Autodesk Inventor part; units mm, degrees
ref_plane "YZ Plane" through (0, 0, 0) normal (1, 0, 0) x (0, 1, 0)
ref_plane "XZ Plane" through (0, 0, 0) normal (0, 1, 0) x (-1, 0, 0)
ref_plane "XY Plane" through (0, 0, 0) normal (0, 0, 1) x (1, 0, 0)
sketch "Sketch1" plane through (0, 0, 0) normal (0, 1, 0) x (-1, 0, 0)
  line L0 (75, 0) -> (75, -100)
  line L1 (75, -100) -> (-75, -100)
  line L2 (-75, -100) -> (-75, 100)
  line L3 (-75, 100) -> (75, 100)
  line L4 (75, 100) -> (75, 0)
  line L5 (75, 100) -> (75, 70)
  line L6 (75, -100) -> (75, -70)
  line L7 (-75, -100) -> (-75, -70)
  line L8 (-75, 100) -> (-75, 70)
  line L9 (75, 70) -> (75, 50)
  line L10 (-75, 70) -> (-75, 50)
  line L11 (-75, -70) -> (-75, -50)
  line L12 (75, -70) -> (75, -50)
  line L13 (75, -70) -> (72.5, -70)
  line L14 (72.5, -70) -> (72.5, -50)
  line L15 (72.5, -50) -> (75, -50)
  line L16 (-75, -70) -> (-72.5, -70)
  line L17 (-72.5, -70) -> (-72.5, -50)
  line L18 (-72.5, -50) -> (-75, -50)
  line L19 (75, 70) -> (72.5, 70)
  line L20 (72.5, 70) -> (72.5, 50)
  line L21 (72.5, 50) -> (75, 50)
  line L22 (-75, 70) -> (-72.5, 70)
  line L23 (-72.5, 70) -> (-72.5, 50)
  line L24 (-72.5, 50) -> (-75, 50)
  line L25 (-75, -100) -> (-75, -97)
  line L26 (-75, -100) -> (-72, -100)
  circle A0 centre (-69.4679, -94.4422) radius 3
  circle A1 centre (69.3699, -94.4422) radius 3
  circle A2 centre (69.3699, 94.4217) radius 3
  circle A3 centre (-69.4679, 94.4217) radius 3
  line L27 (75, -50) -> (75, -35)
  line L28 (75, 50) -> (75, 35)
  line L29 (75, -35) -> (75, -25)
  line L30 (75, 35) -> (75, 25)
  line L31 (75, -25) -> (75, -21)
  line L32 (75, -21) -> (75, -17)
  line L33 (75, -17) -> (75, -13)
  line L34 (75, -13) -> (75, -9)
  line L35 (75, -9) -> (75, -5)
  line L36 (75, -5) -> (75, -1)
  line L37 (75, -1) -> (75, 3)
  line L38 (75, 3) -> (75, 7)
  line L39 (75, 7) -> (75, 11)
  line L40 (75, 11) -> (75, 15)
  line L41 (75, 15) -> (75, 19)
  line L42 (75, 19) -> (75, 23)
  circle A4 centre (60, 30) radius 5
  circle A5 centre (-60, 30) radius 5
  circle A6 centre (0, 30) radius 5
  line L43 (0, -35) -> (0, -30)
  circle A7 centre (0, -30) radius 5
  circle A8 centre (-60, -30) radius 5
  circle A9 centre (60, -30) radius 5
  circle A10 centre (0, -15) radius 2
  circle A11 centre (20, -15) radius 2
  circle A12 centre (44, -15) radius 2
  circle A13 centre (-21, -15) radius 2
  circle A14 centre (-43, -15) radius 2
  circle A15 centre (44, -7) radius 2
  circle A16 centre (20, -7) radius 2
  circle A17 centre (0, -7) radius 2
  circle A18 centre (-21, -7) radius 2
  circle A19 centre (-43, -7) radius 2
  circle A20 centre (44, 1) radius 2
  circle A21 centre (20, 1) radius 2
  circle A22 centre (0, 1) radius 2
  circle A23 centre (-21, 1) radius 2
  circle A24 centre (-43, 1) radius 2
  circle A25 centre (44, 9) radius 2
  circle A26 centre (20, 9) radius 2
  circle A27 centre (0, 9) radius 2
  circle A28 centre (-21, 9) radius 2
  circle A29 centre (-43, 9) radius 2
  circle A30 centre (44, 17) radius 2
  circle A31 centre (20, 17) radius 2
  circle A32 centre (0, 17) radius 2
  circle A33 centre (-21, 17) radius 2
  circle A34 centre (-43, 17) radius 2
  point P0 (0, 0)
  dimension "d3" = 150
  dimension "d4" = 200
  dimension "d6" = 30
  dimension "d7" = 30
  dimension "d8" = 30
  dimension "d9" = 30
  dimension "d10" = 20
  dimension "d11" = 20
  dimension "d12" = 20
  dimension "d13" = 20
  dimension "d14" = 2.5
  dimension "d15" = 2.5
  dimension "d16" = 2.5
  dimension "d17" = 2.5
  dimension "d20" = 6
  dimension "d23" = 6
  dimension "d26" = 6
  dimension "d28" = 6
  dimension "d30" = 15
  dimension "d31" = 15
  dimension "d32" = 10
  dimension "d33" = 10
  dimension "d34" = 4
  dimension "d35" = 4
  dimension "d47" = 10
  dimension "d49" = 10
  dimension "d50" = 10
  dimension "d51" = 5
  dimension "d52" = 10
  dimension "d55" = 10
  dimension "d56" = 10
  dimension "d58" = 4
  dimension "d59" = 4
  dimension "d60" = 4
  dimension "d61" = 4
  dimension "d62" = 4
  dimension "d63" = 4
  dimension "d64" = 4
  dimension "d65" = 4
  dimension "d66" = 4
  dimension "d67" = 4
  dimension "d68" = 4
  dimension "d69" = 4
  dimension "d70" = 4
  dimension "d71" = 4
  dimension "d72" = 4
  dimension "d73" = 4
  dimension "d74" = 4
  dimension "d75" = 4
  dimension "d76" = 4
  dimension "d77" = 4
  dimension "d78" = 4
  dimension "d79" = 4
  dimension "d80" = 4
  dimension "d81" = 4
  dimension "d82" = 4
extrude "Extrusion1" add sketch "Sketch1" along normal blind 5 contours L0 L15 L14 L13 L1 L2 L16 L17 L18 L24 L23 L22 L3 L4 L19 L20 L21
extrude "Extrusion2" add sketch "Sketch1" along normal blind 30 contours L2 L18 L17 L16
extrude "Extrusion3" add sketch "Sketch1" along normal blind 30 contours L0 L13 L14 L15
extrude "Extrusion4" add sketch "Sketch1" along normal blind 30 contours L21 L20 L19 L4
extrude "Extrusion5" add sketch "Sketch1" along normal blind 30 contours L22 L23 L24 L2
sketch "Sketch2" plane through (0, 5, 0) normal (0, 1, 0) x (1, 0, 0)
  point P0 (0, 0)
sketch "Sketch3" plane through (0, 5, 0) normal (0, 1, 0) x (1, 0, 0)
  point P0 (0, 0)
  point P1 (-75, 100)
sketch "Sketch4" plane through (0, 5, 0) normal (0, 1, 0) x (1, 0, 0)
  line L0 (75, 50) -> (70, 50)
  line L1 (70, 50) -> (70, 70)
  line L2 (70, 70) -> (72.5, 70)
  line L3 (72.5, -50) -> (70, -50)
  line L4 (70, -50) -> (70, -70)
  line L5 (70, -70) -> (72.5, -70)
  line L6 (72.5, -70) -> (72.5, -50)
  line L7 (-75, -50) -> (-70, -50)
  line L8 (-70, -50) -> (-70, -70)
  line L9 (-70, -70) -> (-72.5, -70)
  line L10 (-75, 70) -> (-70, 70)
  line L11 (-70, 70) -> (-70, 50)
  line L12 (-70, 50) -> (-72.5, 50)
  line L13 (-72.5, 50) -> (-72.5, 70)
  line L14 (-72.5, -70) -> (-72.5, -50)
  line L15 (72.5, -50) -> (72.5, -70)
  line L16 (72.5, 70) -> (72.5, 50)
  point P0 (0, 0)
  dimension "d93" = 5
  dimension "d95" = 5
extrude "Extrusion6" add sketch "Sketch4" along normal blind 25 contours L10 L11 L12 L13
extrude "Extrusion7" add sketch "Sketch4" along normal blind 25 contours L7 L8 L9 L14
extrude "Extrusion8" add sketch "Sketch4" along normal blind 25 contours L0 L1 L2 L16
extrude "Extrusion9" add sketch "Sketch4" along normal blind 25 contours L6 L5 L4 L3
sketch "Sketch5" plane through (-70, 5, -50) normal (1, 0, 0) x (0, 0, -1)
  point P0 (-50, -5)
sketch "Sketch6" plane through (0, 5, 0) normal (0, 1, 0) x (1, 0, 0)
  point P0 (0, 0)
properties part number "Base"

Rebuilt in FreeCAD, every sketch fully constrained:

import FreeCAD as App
import Part
import Sketcher

V = App.Vector
Q = App.Units.Quantity


def add_polygon(sketch, points):
    """Adds a closed chain of lines whose ends are joined by coincident constraints."""
    first, n = sketch.GeometryCount, len(points)
    for a, b in zip(points, points[1:] + points[:1]):
        sketch.addGeometry(Part.LineSegment(App.Vector(*a, 0), App.Vector(*b, 0)), False)
    for i in range(n):
        sketch.addConstraint(Sketcher.Constraint("Coincident", first + i, 2, first + (i + 1) % n, 1))

doc = App.newDocument("Part")
body = doc.addObject("PartDesign::Body", "Body")

sketch1 = body.newObject("Sketcher::SketchObject", "Sketch")
sketch1.AttachmentSupport = (doc.getObject("XZ_Plane"), [""])
sketch1.MapMode = "FlatFace"
add_polygon(sketch1, [(-75, -50), (-75, 50), (-72.5, 50), (-72.5, 70), (-75, 70), (-75, 100), (75, 100), (75, 70), (72.5, 70), (72.5, 50), (75, 50), (75, -50), (72.5, -50), (72.5, -70), (75, -70), (75, -100), (-75, -100), (-75, -70), (-72.5, -70), (-72.5, -50)])
sketch1.addGeometry(Part.Circle(V(69.5, -94.4, 0), V(0, 0, 1), 3), False)
sketch1.addGeometry(Part.Circle(V(60, -30, 0), V(0, 0, 1), 5), False)
sketch1.addGeometry(Part.Circle(V(43, -15, 0), V(0, 0, 1), 2), False)
sketch1.addGeometry(Part.Circle(V(43, -7, 0), V(0, 0, 1), 2), False)
sketch1.addGeometry(Part.Circle(V(21, -15, 0), V(0, 0, 1), 2), False)
sketch1.addGeometry(Part.Circle(V(21, -7, 0), V(0, 0, 1), 2), False)
sketch1.addGeometry(Part.Circle(V(-69.4, -94.4, 0), V(0, 0, 1), 3), False)
sketch1.addGeometry(Part.Circle(V(0, -30, 0), V(0, 0, 1), 5), False)
sketch1.addGeometry(Part.Circle(V(0, -15, 0), V(0, 0, 1), 2), False)
sketch1.addGeometry(Part.Circle(V(0, -7, 0), V(0, 0, 1), 2), False)
sketch1.addGeometry(Part.Circle(V(-20, -15, 0), V(0, 0, 1), 2), False)
sketch1.addGeometry(Part.Circle(V(-20, -7, 0), V(0, 0, 1), 2), False)
sketch1.addGeometry(Part.Circle(V(-60, -30, 0), V(0, 0, 1), 5), False)
sketch1.addGeometry(Part.Circle(V(-44, -15, 0), V(0, 0, 1), 2), False)
sketch1.addGeometry(Part.Circle(V(-44, -7, 0), V(0, 0, 1), 2), False)
sketch1.addGeometry(Part.Circle(V(43, 1, 0), V(0, 0, 1), 2), False)
sketch1.addGeometry(Part.Circle(V(43, 9, 0), V(0, 0, 1), 2), False)
sketch1.addGeometry(Part.Circle(V(43, 17, 0), V(0, 0, 1), 2), False)
sketch1.addGeometry(Part.Circle(V(60, 30, 0), V(0, 0, 1), 5), False)
sketch1.addGeometry(Part.Circle(V(21, 1, 0), V(0, 0, 1), 2), False)
sketch1.addGeometry(Part.Circle(V(21, 9, 0), V(0, 0, 1), 2), False)
sketch1.addGeometry(Part.Circle(V(21, 17, 0), V(0, 0, 1), 2), False)
sketch1.addGeometry(Part.Circle(V(69.5, 94.4, 0), V(0, 0, 1), 3), False)
sketch1.addGeometry(Part.Circle(V(0, 1, 0), V(0, 0, 1), 2), False)
sketch1.addGeometry(Part.Circle(V(0, 9, 0), V(0, 0, 1), 2), False)
sketch1.addGeometry(Part.Circle(V(0, 17, 0), V(0, 0, 1), 2), False)
sketch1.addGeometry(Part.Circle(V(-20, 1, 0), V(0, 0, 1), 2), False)
sketch1.addGeometry(Part.Circle(V(-20, 9, 0), V(0, 0, 1), 2), False)
sketch1.addGeometry(Part.Circle(V(-20, 17, 0), V(0, 0, 1), 2), False)
sketch1.addGeometry(Part.Circle(V(0, 30, 0), V(0, 0, 1), 5), False)
sketch1.addGeometry(Part.Circle(V(-44, 1, 0), V(0, 0, 1), 2), False)
sketch1.addGeometry(Part.Circle(V(-44, 9, 0), V(0, 0, 1), 2), False)
sketch1.addGeometry(Part.Circle(V(-44, 17, 0), V(0, 0, 1), 2), False)
sketch1.addGeometry(Part.Circle(V(-60, 30, 0), V(0, 0, 1), 5), False)
sketch1.addGeometry(Part.Circle(V(-69.4, 94.4, 0), V(0, 0, 1), 3), False)
sketch1.addConstraint(Sketcher.Constraint("Vertical", 0))
sketch1.addConstraint(Sketcher.Constraint("Horizontal", 1))
sketch1.addConstraint(Sketcher.Constraint("Vertical", 2))
sketch1.addConstraint(Sketcher.Constraint("Horizontal", 3))
sketch1.addConstraint(Sketcher.Constraint("Vertical", 4))
sketch1.addConstraint(Sketcher.Constraint("Horizontal", 5))
sketch1.addConstraint(Sketcher.Constraint("Vertical", 6))
sketch1.addConstraint(Sketcher.Constraint("Horizontal", 7))
sketch1.addConstraint(Sketcher.Constraint("Vertical", 8))
sketch1.addConstraint(Sketcher.Constraint("Horizontal", 9))
sketch1.addConstraint(Sketcher.Constraint("Vertical", 10))
sketch1.addConstraint(Sketcher.Constraint("Horizontal", 11))
sketch1.addConstraint(Sketcher.Constraint("Vertical", 12))
sketch1.addConstraint(Sketcher.Constraint("Horizontal", 13))
sketch1.addConstraint(Sketcher.Constraint("Vertical", 14))
sketch1.addConstraint(Sketcher.Constraint("Horizontal", 15))
sketch1.addConstraint(Sketcher.Constraint("Vertical", 16))
sketch1.addConstraint(Sketcher.Constraint("Horizontal", 17))
sketch1.addConstraint(Sketcher.Constraint("Vertical", 18))
sketch1.addConstraint(Sketcher.Constraint("Horizontal", 19))
sketch1.addConstraint(Sketcher.Constraint("Equal", 22, 23))
sketch1.addConstraint(Sketcher.Constraint("Equal", 23, 24))
sketch1.addConstraint(Sketcher.Constraint("Equal", 24, 25))
sketch1.addConstraint(Sketcher.Constraint("Equal", 20, 26))
sketch1.addConstraint(Sketcher.Constraint("Equal", 21, 27))
sketch1.addConstraint(Sketcher.Constraint("Equal", 25, 28))
sketch1.addConstraint(Sketcher.Constraint("Equal", 28, 29))
sketch1.addConstraint(Sketcher.Constraint("Equal", 29, 30))
sketch1.addConstraint(Sketcher.Constraint("Equal", 30, 31))
sketch1.addConstraint(Sketcher.Constraint("Equal", 27, 32))
sketch1.addConstraint(Sketcher.Constraint("Equal", 31, 33))
sketch1.addConstraint(Sketcher.Constraint("Equal", 33, 34))
sketch1.addConstraint(Sketcher.Constraint("Equal", 34, 35))
sketch1.addConstraint(Sketcher.Constraint("Equal", 35, 36))
sketch1.addConstraint(Sketcher.Constraint("Equal", 36, 37))
sketch1.addConstraint(Sketcher.Constraint("Equal", 32, 38))
sketch1.addConstraint(Sketcher.Constraint("Equal", 37, 39))
sketch1.addConstraint(Sketcher.Constraint("Equal", 39, 40))
sketch1.addConstraint(Sketcher.Constraint("Equal", 40, 41))
sketch1.addConstraint(Sketcher.Constraint("Equal", 26, 42))
sketch1.addConstraint(Sketcher.Constraint("Equal", 41, 43))
sketch1.addConstraint(Sketcher.Constraint("Equal", 43, 44))
sketch1.addConstraint(Sketcher.Constraint("Equal", 44, 45))
sketch1.addConstraint(Sketcher.Constraint("Equal", 45, 46))
sketch1.addConstraint(Sketcher.Constraint("Equal", 46, 47))
sketch1.addConstraint(Sketcher.Constraint("Equal", 47, 48))
sketch1.addConstraint(Sketcher.Constraint("Equal", 38, 49))
sketch1.addConstraint(Sketcher.Constraint("Equal", 48, 50))
sketch1.addConstraint(Sketcher.Constraint("Equal", 50, 51))
sketch1.addConstraint(Sketcher.Constraint("Equal", 51, 52))
sketch1.addConstraint(Sketcher.Constraint("Equal", 49, 53))
sketch1.addConstraint(Sketcher.Constraint("Equal", 42, 54))
sketch1.addConstraint(Sketcher.Constraint("Symmetric", 32, 3, 38, 3, -1, 1))
sketch1.addConstraint(Sketcher.Constraint("Symmetric", 27, 3, 49, 3, -1, 1))
sketch1.addConstraint(Sketcher.Constraint("Symmetric", 21, 3, 53, 3, -1, 1))
sketch1.addConstraint(Sketcher.Constraint("Symmetric", 0, 2, 10, 2, -1, 1))
sketch1.addConstraint(Sketcher.Constraint("Symmetric", 2, 2, 12, 2, -1, 1))
sketch1.addConstraint(Sketcher.Constraint("Symmetric", 4, 2, 14, 2, -1, 1))
sketch1.addConstraint(Sketcher.Constraint("Symmetric", 6, 2, 16, 2, -1, 1))
sketch1.addConstraint(Sketcher.Constraint("Symmetric", 8, 2, 18, 2, -1, 1))
sketch1.addConstraint(Sketcher.Constraint("Symmetric", 21, 3, 32, 3, -2))
sketch1.addConstraint(Sketcher.Constraint("Symmetric", 3, 2, 6, 2, -2))
sketch1.addConstraint(Sketcher.Constraint("Symmetric", 1, 2, 8, 2, -2))
sketch1.addConstraint(Sketcher.Constraint("PointOnObject", 27, 3, -2))
sketch1.addConstraint(Sketcher.Constraint("PointOnObject", 28, 3, -2))
sketch1.addConstraint(Sketcher.Constraint("PointOnObject", 29, 3, -2))
sketch1.addConstraint(Sketcher.Constraint("PointOnObject", 43, 3, -2))
sketch1.addConstraint(Sketcher.Constraint("PointOnObject", 44, 3, -2))
sketch1.addConstraint(Sketcher.Constraint("PointOnObject", 45, 3, -2))
sketch1.addConstraint(Sketcher.Constraint("Horizontal", 22, 3, 24, 3))
sketch1.addConstraint(Sketcher.Constraint("Horizontal", 23, 3, 25, 3))
sketch1.addConstraint(Sketcher.Constraint("Horizontal", 20, 3, 26, 3))
sketch1.addConstraint(Sketcher.Constraint("Horizontal", 21, 3, 27, 3))
sketch1.addConstraint(Sketcher.Constraint("Horizontal", 24, 3, 28, 3))
sketch1.addConstraint(Sketcher.Constraint("Horizontal", 25, 3, 29, 3))
sketch1.addConstraint(Sketcher.Constraint("Horizontal", 28, 3, 30, 3))
sketch1.addConstraint(Sketcher.Constraint("Horizontal", 29, 3, 31, 3))
sketch1.addConstraint(Sketcher.Constraint("Horizontal", 30, 3, 33, 3))
sketch1.addConstraint(Sketcher.Constraint("Horizontal", 31, 3, 34, 3))
sketch1.addConstraint(Sketcher.Constraint("Horizontal", 35, 3, 39, 3))
sketch1.addConstraint(Sketcher.Constraint("Horizontal", 36, 3, 40, 3))
sketch1.addConstraint(Sketcher.Constraint("Horizontal", 37, 3, 41, 3))
sketch1.addConstraint(Sketcher.Constraint("Horizontal", 39, 3, 43, 3))
sketch1.addConstraint(Sketcher.Constraint("Horizontal", 40, 3, 44, 3))
sketch1.addConstraint(Sketcher.Constraint("Horizontal", 41, 3, 45, 3))
sketch1.addConstraint(Sketcher.Constraint("Horizontal", 43, 3, 46, 3))
sketch1.addConstraint(Sketcher.Constraint("Horizontal", 44, 3, 47, 3))
sketch1.addConstraint(Sketcher.Constraint("Horizontal", 45, 3, 48, 3))
sketch1.addConstraint(Sketcher.Constraint("Horizontal", 46, 3, 50, 3))
sketch1.addConstraint(Sketcher.Constraint("Horizontal", 47, 3, 51, 3))
sketch1.addConstraint(Sketcher.Constraint("Horizontal", 48, 3, 52, 3))
sketch1.addConstraint(Sketcher.Constraint("Horizontal", 42, 3, 54, 3))
sketch1.addConstraint(Sketcher.Constraint("Vertical", 22, 3, 23, 3))
sketch1.addConstraint(Sketcher.Constraint("Vertical", 24, 3, 25, 3))
sketch1.addConstraint(Sketcher.Constraint("Vertical", 30, 3, 31, 3))
sketch1.addConstraint(Sketcher.Constraint("Vertical", 33, 3, 34, 3))
sketch1.addConstraint(Sketcher.Constraint("Vertical", 23, 3, 35, 3))
sketch1.addConstraint(Sketcher.Constraint("Vertical", 35, 3, 36, 3))
sketch1.addConstraint(Sketcher.Constraint("Vertical", 36, 3, 37, 3))
sketch1.addConstraint(Sketcher.Constraint("Vertical", 25, 3, 39, 3))
sketch1.addConstraint(Sketcher.Constraint("Vertical", 39, 3, 40, 3))
sketch1.addConstraint(Sketcher.Constraint("Vertical", 40, 3, 41, 3))
sketch1.addConstraint(Sketcher.Constraint("Vertical", 20, 3, 42, 3))
sketch1.addConstraint(Sketcher.Constraint("Vertical", 31, 3, 46, 3))
sketch1.addConstraint(Sketcher.Constraint("Vertical", 46, 3, 47, 3))
sketch1.addConstraint(Sketcher.Constraint("Vertical", 47, 3, 48, 3))
sketch1.addConstraint(Sketcher.Constraint("Vertical", 34, 3, 50, 3))
sketch1.addConstraint(Sketcher.Constraint("Vertical", 50, 3, 51, 3))
sketch1.addConstraint(Sketcher.Constraint("Vertical", 51, 3, 52, 3))
sketch1.addConstraint(Sketcher.Constraint("Vertical", 26, 3, 54, 3))
sketch1.addConstraint(Sketcher.Constraint("Vertical", 0, 2, 3, 2))
sketch1.addConstraint(Sketcher.Constraint("Diameter", 20, Q("6 mm")))
sketch1.addConstraint(Sketcher.Constraint("Diameter", 21, Q("10 mm")))
sketch1.addConstraint(Sketcher.Constraint("Diameter", 22, Q("4 mm")))
sketch1.addConstraint(Sketcher.Constraint("DistanceX", 5, 1, 5, 2, Q("150 mm")))
sketch1.addConstraint(Sketcher.Constraint("DistanceY", 2, 1, 2, 2, Q("20 mm")))
sketch1.addConstraint(Sketcher.Constraint("DistanceY", 4, 1, 4, 2, Q("30 mm")))
sketch1.addConstraint(Sketcher.Constraint("DistanceX", 1, 1, 1, 2, Q("2.5 mm")))
sketch1.addConstraint(Sketcher.Constraint("DistanceY", 21, 3, -1, 1, Q("30 mm")))
sketch1.addConstraint(Sketcher.Constraint("DistanceY", 22, 3, -1, 1, Q("15 mm")))
sketch1.addConstraint(Sketcher.Constraint("DistanceX", 30, 3, -1, 1, Q("20 mm")))
sketch1.addConstraint(Sketcher.Constraint("DistanceX", 0, 2, 53, 3, Q("15 mm")))
sketch1.addConstraint(Sketcher.Constraint("DistanceY", 53, 3, 0, 2, Q("20 mm")))
sketch1.addConstraint(Sketcher.Constraint("DistanceX", -1, 1, 22, 3, Q("43 mm")))
sketch1.addConstraint(Sketcher.Constraint("DistanceY", 23, 3, -1, 1, Q("7 mm")))
sketch1.addConstraint(Sketcher.Constraint("DistanceX", -1, 1, 24, 3, Q("21 mm")))
sketch1.addConstraint(Sketcher.Constraint("DistanceX", 33, 3, -1, 1, Q("44 mm")))
sketch1.addConstraint(Sketcher.Constraint("DistanceY", -1, 1, 35, 3, Q("1 mm")))
sketch1.addConstraint(Sketcher.Constraint("DistanceY", -1, 1, 36, 3, Q("9 mm")))
sketch1.addConstraint(Sketcher.Constraint("DistanceY", -1, 1, 37, 3, Q("17 mm")))
sketch1.addConstraint(Sketcher.Constraint("DistanceX", 26, 3, -1, 1, Q("69.37 mm")))
sketch1.addConstraint(Sketcher.Constraint("DistanceX", -1, 1, 20, 3, Q("69.468 mm")))
sketch1.addConstraint(Sketcher.Constraint("DistanceY", 20, 3, -1, 1, Q("94.4422 mm")))
sketch1.addConstraint(Sketcher.Constraint("DistanceY", -1, 1, 42, 3, Q("94.4217 mm")))
pad1 = body.newObject("PartDesign::Pad", "Pad")
pad1.Profile = sketch1
pad1.Length = 5
pad1.Reversed = True

sketch2 = body.newObject("Sketcher::SketchObject", "Sketch001")
sketch2.AttachmentSupport = (doc.getObject("XZ_Plane"), [""])
sketch2.MapMode = "FlatFace"
add_polygon(sketch2, [(75, -50), (75, -70), (72.5, -70), (72.5, -50)])
sketch2.addConstraint(Sketcher.Constraint("Vertical", 0))
sketch2.addConstraint(Sketcher.Constraint("Horizontal", 1))
sketch2.addConstraint(Sketcher.Constraint("Vertical", 2))
sketch2.addConstraint(Sketcher.Constraint("Horizontal", 3))
sketch2.addConstraint(Sketcher.Constraint("DistanceY", 0, 2, 0, 1, Q("20 mm")))
sketch2.addConstraint(Sketcher.Constraint("DistanceX", 1, 2, 1, 1, Q("2.5 mm")))
sketch2.addConstraint(Sketcher.Constraint("DistanceX", -1, 1, 0, 2, Q("75 mm")))
sketch2.addConstraint(Sketcher.Constraint("DistanceY", 0, 2, -1, 1, Q("70 mm")))
pad2 = body.newObject("PartDesign::Pad", "Pad001")
pad2.Profile = sketch2
pad2.Length = 30
pad2.Reversed = True

sketch3 = body.newObject("Sketcher::SketchObject", "Sketch002")
sketch3.AttachmentSupport = (doc.getObject("XZ_Plane"), [""])
sketch3.MapMode = "FlatFace"
add_polygon(sketch3, [(-75, -70), (-75, -50), (-72.5, -50), (-72.5, -70)])
sketch3.addConstraint(Sketcher.Constraint("Vertical", 0))
sketch3.addConstraint(Sketcher.Constraint("Horizontal", 1))
sketch3.addConstraint(Sketcher.Constraint("Vertical", 2))
sketch3.addConstraint(Sketcher.Constraint("Horizontal", 3))
sketch3.addConstraint(Sketcher.Constraint("DistanceY", 0, 1, 0, 2, Q("20 mm")))
sketch3.addConstraint(Sketcher.Constraint("DistanceX", 1, 1, 1, 2, Q("2.5 mm")))
sketch3.addConstraint(Sketcher.Constraint("DistanceX", 0, 2, -1, 1, Q("75 mm")))
sketch3.addConstraint(Sketcher.Constraint("DistanceY", 0, 2, -1, 1, Q("50 mm")))
pad3 = body.newObject("PartDesign::Pad", "Pad002")
pad3.Profile = sketch3
pad3.Length = 30
pad3.Reversed = True

sketch4 = body.newObject("Sketcher::SketchObject", "Sketch003")
sketch4.AttachmentSupport = (doc.getObject("XZ_Plane"), [""])
sketch4.MapMode = "FlatFace"
add_polygon(sketch4, [(-72.5, 50), (-75, 50), (-75, 70), (-72.5, 70)])
sketch4.addConstraint(Sketcher.Constraint("Horizontal", 0))
sketch4.addConstraint(Sketcher.Constraint("Vertical", 1))
sketch4.addConstraint(Sketcher.Constraint("Horizontal", 2))
sketch4.addConstraint(Sketcher.Constraint("Vertical", 3))
sketch4.addConstraint(Sketcher.Constraint("DistanceY", 1, 1, 1, 2, Q("20 mm")))
sketch4.addConstraint(Sketcher.Constraint("DistanceX", 0, 2, 0, 1, Q("2.5 mm")))
sketch4.addConstraint(Sketcher.Constraint("DistanceX", 0, 2, -1, 1, Q("75 mm")))
sketch4.addConstraint(Sketcher.Constraint("DistanceY", -1, 1, 0, 2, Q("50 mm")))
pad4 = body.newObject("PartDesign::Pad", "Pad003")
pad4.Profile = sketch4
pad4.Length = 30
pad4.Reversed = True

sketch5 = body.newObject("Sketcher::SketchObject", "Sketch004")
sketch5.AttachmentSupport = (doc.getObject("XZ_Plane"), [""])
sketch5.MapMode = "FlatFace"
add_polygon(sketch5, [(72.5, 70), (75, 70), (75, 50), (72.5, 50)])
sketch5.addConstraint(Sketcher.Constraint("Horizontal", 0))
sketch5.addConstraint(Sketcher.Constraint("Vertical", 1))
sketch5.addConstraint(Sketcher.Constraint("Horizontal", 2))
sketch5.addConstraint(Sketcher.Constraint("Vertical", 3))
sketch5.addConstraint(Sketcher.Constraint("DistanceY", 1, 2, 1, 1, Q("20 mm")))
sketch5.addConstraint(Sketcher.Constraint("DistanceX", 0, 1, 0, 2, Q("2.5 mm")))
sketch5.addConstraint(Sketcher.Constraint("DistanceX", -1, 1, 0, 2, Q("75 mm")))
sketch5.addConstraint(Sketcher.Constraint("DistanceY", -1, 1, 0, 2, Q("70 mm")))
pad5 = body.newObject("PartDesign::Pad", "Pad004")
pad5.Profile = sketch5
pad5.Length = 30
pad5.Reversed = True

sketch6 = body.newObject("Sketcher::SketchObject", "Sketch005")
sketch6.AttachmentSupport = (doc.getObject("XZ_Plane"), [""])
sketch6.MapMode = "FlatFace"
sketch6.AttachmentOffset = App.Placement(V(0, 0, -5), App.Rotation())
add_polygon(sketch6, [(-70, -70), (-72.5, -70), (-72.5, -50), (-70, -50)])
sketch6.addConstraint(Sketcher.Constraint("Horizontal", 0))
sketch6.addConstraint(Sketcher.Constraint("Vertical", 1))
sketch6.addConstraint(Sketcher.Constraint("Horizontal", 2))
sketch6.addConstraint(Sketcher.Constraint("Vertical", 3))
sketch6.addConstraint(Sketcher.Constraint("DistanceY", 1, 1, 1, 2, Q("20 mm")))
sketch6.addConstraint(Sketcher.Constraint("DistanceX", 0, 2, 0, 1, Q("2.5 mm")))
sketch6.addConstraint(Sketcher.Constraint("DistanceY", 0, 2, -1, 1, Q("70 mm")))
sketch6.addConstraint(Sketcher.Constraint("DistanceX", 2, 2, -1, 1, Q("70 mm")))
pad6 = body.newObject("PartDesign::Pad", "Pad005")
pad6.Profile = sketch6
pad6.Length = 25
pad6.Reversed = True

sketch7 = body.newObject("Sketcher::SketchObject", "Sketch006")
sketch7.AttachmentSupport = (doc.getObject("XZ_Plane"), [""])
sketch7.MapMode = "FlatFace"
sketch7.AttachmentOffset = App.Placement(V(0, 0, -5), App.Rotation())
add_polygon(sketch7, [(-70, 50), (-72.5, 50), (-72.5, 70), (-70, 70)])
sketch7.addConstraint(Sketcher.Constraint("Horizontal", 0))
sketch7.addConstraint(Sketcher.Constraint("Vertical", 1))
sketch7.addConstraint(Sketcher.Constraint("Horizontal", 2))
sketch7.addConstraint(Sketcher.Constraint("Vertical", 3))
sketch7.addConstraint(Sketcher.Constraint("DistanceY", 1, 1, 1, 2, Q("20 mm")))
sketch7.addConstraint(Sketcher.Constraint("DistanceX", 0, 2, 0, 1, Q("2.5 mm")))
sketch7.addConstraint(Sketcher.Constraint("DistanceY", -1, 1, 0, 2, Q("50 mm")))
sketch7.addConstraint(Sketcher.Constraint("DistanceX", 2, 2, -1, 1, Q("70 mm")))
pad7 = body.newObject("PartDesign::Pad", "Pad006")
pad7.Profile = sketch7
pad7.Length = 25
pad7.Reversed = True

sketch8 = body.newObject("Sketcher::SketchObject", "Sketch007")
sketch8.AttachmentSupport = (doc.getObject("XZ_Plane"), [""])
sketch8.MapMode = "FlatFace"
sketch8.AttachmentOffset = App.Placement(V(0, 0, -5), App.Rotation())
add_polygon(sketch8, [(70, -50), (72.5, -50), (72.5, -70), (70, -70)])
sketch8.addConstraint(Sketcher.Constraint("Horizontal", 0))
sketch8.addConstraint(Sketcher.Constraint("Vertical", 1))
sketch8.addConstraint(Sketcher.Constraint("Horizontal", 2))
sketch8.addConstraint(Sketcher.Constraint("Vertical", 3))
sketch8.addConstraint(Sketcher.Constraint("DistanceY", 1, 2, 1, 1, Q("20 mm")))
sketch8.addConstraint(Sketcher.Constraint("DistanceX", 0, 1, 0, 2, Q("2.5 mm")))
sketch8.addConstraint(Sketcher.Constraint("DistanceY", 0, 2, -1, 1, Q("50 mm")))
sketch8.addConstraint(Sketcher.Constraint("DistanceX", -1, 1, 2, 2, Q("70 mm")))
pad8 = body.newObject("PartDesign::Pad", "Pad007")
pad8.Profile = sketch8
pad8.Length = 25
pad8.Reversed = True

sketch9 = body.newObject("Sketcher::SketchObject", "Sketch008")
sketch9.AttachmentSupport = (doc.getObject("XZ_Plane"), [""])
sketch9.MapMode = "FlatFace"
sketch9.AttachmentOffset = App.Placement(V(0, 0, -5), App.Rotation())
add_polygon(sketch9, [(72.5, 70), (72.5, 50), (70, 50), (70, 70)])
sketch9.addConstraint(Sketcher.Constraint("Vertical", 0))
sketch9.addConstraint(Sketcher.Constraint("Horizontal", 1))
sketch9.addConstraint(Sketcher.Constraint("Vertical", 2))
sketch9.addConstraint(Sketcher.Constraint("Horizontal", 3))
sketch9.addConstraint(Sketcher.Constraint("DistanceY", 0, 2, 0, 1, Q("20 mm")))
sketch9.addConstraint(Sketcher.Constraint("DistanceX", 1, 2, 1, 1, Q("2.5 mm")))
sketch9.addConstraint(Sketcher.Constraint("DistanceY", -1, 1, 0, 2, Q("50 mm")))
sketch9.addConstraint(Sketcher.Constraint("DistanceX", -1, 1, 1, 2, Q("70 mm")))
pad9 = body.newObject("PartDesign::Pad", "Pad008")
pad9.Profile = sketch9
pad9.Length = 25
pad9.Reversed = True

doc.recompute()
